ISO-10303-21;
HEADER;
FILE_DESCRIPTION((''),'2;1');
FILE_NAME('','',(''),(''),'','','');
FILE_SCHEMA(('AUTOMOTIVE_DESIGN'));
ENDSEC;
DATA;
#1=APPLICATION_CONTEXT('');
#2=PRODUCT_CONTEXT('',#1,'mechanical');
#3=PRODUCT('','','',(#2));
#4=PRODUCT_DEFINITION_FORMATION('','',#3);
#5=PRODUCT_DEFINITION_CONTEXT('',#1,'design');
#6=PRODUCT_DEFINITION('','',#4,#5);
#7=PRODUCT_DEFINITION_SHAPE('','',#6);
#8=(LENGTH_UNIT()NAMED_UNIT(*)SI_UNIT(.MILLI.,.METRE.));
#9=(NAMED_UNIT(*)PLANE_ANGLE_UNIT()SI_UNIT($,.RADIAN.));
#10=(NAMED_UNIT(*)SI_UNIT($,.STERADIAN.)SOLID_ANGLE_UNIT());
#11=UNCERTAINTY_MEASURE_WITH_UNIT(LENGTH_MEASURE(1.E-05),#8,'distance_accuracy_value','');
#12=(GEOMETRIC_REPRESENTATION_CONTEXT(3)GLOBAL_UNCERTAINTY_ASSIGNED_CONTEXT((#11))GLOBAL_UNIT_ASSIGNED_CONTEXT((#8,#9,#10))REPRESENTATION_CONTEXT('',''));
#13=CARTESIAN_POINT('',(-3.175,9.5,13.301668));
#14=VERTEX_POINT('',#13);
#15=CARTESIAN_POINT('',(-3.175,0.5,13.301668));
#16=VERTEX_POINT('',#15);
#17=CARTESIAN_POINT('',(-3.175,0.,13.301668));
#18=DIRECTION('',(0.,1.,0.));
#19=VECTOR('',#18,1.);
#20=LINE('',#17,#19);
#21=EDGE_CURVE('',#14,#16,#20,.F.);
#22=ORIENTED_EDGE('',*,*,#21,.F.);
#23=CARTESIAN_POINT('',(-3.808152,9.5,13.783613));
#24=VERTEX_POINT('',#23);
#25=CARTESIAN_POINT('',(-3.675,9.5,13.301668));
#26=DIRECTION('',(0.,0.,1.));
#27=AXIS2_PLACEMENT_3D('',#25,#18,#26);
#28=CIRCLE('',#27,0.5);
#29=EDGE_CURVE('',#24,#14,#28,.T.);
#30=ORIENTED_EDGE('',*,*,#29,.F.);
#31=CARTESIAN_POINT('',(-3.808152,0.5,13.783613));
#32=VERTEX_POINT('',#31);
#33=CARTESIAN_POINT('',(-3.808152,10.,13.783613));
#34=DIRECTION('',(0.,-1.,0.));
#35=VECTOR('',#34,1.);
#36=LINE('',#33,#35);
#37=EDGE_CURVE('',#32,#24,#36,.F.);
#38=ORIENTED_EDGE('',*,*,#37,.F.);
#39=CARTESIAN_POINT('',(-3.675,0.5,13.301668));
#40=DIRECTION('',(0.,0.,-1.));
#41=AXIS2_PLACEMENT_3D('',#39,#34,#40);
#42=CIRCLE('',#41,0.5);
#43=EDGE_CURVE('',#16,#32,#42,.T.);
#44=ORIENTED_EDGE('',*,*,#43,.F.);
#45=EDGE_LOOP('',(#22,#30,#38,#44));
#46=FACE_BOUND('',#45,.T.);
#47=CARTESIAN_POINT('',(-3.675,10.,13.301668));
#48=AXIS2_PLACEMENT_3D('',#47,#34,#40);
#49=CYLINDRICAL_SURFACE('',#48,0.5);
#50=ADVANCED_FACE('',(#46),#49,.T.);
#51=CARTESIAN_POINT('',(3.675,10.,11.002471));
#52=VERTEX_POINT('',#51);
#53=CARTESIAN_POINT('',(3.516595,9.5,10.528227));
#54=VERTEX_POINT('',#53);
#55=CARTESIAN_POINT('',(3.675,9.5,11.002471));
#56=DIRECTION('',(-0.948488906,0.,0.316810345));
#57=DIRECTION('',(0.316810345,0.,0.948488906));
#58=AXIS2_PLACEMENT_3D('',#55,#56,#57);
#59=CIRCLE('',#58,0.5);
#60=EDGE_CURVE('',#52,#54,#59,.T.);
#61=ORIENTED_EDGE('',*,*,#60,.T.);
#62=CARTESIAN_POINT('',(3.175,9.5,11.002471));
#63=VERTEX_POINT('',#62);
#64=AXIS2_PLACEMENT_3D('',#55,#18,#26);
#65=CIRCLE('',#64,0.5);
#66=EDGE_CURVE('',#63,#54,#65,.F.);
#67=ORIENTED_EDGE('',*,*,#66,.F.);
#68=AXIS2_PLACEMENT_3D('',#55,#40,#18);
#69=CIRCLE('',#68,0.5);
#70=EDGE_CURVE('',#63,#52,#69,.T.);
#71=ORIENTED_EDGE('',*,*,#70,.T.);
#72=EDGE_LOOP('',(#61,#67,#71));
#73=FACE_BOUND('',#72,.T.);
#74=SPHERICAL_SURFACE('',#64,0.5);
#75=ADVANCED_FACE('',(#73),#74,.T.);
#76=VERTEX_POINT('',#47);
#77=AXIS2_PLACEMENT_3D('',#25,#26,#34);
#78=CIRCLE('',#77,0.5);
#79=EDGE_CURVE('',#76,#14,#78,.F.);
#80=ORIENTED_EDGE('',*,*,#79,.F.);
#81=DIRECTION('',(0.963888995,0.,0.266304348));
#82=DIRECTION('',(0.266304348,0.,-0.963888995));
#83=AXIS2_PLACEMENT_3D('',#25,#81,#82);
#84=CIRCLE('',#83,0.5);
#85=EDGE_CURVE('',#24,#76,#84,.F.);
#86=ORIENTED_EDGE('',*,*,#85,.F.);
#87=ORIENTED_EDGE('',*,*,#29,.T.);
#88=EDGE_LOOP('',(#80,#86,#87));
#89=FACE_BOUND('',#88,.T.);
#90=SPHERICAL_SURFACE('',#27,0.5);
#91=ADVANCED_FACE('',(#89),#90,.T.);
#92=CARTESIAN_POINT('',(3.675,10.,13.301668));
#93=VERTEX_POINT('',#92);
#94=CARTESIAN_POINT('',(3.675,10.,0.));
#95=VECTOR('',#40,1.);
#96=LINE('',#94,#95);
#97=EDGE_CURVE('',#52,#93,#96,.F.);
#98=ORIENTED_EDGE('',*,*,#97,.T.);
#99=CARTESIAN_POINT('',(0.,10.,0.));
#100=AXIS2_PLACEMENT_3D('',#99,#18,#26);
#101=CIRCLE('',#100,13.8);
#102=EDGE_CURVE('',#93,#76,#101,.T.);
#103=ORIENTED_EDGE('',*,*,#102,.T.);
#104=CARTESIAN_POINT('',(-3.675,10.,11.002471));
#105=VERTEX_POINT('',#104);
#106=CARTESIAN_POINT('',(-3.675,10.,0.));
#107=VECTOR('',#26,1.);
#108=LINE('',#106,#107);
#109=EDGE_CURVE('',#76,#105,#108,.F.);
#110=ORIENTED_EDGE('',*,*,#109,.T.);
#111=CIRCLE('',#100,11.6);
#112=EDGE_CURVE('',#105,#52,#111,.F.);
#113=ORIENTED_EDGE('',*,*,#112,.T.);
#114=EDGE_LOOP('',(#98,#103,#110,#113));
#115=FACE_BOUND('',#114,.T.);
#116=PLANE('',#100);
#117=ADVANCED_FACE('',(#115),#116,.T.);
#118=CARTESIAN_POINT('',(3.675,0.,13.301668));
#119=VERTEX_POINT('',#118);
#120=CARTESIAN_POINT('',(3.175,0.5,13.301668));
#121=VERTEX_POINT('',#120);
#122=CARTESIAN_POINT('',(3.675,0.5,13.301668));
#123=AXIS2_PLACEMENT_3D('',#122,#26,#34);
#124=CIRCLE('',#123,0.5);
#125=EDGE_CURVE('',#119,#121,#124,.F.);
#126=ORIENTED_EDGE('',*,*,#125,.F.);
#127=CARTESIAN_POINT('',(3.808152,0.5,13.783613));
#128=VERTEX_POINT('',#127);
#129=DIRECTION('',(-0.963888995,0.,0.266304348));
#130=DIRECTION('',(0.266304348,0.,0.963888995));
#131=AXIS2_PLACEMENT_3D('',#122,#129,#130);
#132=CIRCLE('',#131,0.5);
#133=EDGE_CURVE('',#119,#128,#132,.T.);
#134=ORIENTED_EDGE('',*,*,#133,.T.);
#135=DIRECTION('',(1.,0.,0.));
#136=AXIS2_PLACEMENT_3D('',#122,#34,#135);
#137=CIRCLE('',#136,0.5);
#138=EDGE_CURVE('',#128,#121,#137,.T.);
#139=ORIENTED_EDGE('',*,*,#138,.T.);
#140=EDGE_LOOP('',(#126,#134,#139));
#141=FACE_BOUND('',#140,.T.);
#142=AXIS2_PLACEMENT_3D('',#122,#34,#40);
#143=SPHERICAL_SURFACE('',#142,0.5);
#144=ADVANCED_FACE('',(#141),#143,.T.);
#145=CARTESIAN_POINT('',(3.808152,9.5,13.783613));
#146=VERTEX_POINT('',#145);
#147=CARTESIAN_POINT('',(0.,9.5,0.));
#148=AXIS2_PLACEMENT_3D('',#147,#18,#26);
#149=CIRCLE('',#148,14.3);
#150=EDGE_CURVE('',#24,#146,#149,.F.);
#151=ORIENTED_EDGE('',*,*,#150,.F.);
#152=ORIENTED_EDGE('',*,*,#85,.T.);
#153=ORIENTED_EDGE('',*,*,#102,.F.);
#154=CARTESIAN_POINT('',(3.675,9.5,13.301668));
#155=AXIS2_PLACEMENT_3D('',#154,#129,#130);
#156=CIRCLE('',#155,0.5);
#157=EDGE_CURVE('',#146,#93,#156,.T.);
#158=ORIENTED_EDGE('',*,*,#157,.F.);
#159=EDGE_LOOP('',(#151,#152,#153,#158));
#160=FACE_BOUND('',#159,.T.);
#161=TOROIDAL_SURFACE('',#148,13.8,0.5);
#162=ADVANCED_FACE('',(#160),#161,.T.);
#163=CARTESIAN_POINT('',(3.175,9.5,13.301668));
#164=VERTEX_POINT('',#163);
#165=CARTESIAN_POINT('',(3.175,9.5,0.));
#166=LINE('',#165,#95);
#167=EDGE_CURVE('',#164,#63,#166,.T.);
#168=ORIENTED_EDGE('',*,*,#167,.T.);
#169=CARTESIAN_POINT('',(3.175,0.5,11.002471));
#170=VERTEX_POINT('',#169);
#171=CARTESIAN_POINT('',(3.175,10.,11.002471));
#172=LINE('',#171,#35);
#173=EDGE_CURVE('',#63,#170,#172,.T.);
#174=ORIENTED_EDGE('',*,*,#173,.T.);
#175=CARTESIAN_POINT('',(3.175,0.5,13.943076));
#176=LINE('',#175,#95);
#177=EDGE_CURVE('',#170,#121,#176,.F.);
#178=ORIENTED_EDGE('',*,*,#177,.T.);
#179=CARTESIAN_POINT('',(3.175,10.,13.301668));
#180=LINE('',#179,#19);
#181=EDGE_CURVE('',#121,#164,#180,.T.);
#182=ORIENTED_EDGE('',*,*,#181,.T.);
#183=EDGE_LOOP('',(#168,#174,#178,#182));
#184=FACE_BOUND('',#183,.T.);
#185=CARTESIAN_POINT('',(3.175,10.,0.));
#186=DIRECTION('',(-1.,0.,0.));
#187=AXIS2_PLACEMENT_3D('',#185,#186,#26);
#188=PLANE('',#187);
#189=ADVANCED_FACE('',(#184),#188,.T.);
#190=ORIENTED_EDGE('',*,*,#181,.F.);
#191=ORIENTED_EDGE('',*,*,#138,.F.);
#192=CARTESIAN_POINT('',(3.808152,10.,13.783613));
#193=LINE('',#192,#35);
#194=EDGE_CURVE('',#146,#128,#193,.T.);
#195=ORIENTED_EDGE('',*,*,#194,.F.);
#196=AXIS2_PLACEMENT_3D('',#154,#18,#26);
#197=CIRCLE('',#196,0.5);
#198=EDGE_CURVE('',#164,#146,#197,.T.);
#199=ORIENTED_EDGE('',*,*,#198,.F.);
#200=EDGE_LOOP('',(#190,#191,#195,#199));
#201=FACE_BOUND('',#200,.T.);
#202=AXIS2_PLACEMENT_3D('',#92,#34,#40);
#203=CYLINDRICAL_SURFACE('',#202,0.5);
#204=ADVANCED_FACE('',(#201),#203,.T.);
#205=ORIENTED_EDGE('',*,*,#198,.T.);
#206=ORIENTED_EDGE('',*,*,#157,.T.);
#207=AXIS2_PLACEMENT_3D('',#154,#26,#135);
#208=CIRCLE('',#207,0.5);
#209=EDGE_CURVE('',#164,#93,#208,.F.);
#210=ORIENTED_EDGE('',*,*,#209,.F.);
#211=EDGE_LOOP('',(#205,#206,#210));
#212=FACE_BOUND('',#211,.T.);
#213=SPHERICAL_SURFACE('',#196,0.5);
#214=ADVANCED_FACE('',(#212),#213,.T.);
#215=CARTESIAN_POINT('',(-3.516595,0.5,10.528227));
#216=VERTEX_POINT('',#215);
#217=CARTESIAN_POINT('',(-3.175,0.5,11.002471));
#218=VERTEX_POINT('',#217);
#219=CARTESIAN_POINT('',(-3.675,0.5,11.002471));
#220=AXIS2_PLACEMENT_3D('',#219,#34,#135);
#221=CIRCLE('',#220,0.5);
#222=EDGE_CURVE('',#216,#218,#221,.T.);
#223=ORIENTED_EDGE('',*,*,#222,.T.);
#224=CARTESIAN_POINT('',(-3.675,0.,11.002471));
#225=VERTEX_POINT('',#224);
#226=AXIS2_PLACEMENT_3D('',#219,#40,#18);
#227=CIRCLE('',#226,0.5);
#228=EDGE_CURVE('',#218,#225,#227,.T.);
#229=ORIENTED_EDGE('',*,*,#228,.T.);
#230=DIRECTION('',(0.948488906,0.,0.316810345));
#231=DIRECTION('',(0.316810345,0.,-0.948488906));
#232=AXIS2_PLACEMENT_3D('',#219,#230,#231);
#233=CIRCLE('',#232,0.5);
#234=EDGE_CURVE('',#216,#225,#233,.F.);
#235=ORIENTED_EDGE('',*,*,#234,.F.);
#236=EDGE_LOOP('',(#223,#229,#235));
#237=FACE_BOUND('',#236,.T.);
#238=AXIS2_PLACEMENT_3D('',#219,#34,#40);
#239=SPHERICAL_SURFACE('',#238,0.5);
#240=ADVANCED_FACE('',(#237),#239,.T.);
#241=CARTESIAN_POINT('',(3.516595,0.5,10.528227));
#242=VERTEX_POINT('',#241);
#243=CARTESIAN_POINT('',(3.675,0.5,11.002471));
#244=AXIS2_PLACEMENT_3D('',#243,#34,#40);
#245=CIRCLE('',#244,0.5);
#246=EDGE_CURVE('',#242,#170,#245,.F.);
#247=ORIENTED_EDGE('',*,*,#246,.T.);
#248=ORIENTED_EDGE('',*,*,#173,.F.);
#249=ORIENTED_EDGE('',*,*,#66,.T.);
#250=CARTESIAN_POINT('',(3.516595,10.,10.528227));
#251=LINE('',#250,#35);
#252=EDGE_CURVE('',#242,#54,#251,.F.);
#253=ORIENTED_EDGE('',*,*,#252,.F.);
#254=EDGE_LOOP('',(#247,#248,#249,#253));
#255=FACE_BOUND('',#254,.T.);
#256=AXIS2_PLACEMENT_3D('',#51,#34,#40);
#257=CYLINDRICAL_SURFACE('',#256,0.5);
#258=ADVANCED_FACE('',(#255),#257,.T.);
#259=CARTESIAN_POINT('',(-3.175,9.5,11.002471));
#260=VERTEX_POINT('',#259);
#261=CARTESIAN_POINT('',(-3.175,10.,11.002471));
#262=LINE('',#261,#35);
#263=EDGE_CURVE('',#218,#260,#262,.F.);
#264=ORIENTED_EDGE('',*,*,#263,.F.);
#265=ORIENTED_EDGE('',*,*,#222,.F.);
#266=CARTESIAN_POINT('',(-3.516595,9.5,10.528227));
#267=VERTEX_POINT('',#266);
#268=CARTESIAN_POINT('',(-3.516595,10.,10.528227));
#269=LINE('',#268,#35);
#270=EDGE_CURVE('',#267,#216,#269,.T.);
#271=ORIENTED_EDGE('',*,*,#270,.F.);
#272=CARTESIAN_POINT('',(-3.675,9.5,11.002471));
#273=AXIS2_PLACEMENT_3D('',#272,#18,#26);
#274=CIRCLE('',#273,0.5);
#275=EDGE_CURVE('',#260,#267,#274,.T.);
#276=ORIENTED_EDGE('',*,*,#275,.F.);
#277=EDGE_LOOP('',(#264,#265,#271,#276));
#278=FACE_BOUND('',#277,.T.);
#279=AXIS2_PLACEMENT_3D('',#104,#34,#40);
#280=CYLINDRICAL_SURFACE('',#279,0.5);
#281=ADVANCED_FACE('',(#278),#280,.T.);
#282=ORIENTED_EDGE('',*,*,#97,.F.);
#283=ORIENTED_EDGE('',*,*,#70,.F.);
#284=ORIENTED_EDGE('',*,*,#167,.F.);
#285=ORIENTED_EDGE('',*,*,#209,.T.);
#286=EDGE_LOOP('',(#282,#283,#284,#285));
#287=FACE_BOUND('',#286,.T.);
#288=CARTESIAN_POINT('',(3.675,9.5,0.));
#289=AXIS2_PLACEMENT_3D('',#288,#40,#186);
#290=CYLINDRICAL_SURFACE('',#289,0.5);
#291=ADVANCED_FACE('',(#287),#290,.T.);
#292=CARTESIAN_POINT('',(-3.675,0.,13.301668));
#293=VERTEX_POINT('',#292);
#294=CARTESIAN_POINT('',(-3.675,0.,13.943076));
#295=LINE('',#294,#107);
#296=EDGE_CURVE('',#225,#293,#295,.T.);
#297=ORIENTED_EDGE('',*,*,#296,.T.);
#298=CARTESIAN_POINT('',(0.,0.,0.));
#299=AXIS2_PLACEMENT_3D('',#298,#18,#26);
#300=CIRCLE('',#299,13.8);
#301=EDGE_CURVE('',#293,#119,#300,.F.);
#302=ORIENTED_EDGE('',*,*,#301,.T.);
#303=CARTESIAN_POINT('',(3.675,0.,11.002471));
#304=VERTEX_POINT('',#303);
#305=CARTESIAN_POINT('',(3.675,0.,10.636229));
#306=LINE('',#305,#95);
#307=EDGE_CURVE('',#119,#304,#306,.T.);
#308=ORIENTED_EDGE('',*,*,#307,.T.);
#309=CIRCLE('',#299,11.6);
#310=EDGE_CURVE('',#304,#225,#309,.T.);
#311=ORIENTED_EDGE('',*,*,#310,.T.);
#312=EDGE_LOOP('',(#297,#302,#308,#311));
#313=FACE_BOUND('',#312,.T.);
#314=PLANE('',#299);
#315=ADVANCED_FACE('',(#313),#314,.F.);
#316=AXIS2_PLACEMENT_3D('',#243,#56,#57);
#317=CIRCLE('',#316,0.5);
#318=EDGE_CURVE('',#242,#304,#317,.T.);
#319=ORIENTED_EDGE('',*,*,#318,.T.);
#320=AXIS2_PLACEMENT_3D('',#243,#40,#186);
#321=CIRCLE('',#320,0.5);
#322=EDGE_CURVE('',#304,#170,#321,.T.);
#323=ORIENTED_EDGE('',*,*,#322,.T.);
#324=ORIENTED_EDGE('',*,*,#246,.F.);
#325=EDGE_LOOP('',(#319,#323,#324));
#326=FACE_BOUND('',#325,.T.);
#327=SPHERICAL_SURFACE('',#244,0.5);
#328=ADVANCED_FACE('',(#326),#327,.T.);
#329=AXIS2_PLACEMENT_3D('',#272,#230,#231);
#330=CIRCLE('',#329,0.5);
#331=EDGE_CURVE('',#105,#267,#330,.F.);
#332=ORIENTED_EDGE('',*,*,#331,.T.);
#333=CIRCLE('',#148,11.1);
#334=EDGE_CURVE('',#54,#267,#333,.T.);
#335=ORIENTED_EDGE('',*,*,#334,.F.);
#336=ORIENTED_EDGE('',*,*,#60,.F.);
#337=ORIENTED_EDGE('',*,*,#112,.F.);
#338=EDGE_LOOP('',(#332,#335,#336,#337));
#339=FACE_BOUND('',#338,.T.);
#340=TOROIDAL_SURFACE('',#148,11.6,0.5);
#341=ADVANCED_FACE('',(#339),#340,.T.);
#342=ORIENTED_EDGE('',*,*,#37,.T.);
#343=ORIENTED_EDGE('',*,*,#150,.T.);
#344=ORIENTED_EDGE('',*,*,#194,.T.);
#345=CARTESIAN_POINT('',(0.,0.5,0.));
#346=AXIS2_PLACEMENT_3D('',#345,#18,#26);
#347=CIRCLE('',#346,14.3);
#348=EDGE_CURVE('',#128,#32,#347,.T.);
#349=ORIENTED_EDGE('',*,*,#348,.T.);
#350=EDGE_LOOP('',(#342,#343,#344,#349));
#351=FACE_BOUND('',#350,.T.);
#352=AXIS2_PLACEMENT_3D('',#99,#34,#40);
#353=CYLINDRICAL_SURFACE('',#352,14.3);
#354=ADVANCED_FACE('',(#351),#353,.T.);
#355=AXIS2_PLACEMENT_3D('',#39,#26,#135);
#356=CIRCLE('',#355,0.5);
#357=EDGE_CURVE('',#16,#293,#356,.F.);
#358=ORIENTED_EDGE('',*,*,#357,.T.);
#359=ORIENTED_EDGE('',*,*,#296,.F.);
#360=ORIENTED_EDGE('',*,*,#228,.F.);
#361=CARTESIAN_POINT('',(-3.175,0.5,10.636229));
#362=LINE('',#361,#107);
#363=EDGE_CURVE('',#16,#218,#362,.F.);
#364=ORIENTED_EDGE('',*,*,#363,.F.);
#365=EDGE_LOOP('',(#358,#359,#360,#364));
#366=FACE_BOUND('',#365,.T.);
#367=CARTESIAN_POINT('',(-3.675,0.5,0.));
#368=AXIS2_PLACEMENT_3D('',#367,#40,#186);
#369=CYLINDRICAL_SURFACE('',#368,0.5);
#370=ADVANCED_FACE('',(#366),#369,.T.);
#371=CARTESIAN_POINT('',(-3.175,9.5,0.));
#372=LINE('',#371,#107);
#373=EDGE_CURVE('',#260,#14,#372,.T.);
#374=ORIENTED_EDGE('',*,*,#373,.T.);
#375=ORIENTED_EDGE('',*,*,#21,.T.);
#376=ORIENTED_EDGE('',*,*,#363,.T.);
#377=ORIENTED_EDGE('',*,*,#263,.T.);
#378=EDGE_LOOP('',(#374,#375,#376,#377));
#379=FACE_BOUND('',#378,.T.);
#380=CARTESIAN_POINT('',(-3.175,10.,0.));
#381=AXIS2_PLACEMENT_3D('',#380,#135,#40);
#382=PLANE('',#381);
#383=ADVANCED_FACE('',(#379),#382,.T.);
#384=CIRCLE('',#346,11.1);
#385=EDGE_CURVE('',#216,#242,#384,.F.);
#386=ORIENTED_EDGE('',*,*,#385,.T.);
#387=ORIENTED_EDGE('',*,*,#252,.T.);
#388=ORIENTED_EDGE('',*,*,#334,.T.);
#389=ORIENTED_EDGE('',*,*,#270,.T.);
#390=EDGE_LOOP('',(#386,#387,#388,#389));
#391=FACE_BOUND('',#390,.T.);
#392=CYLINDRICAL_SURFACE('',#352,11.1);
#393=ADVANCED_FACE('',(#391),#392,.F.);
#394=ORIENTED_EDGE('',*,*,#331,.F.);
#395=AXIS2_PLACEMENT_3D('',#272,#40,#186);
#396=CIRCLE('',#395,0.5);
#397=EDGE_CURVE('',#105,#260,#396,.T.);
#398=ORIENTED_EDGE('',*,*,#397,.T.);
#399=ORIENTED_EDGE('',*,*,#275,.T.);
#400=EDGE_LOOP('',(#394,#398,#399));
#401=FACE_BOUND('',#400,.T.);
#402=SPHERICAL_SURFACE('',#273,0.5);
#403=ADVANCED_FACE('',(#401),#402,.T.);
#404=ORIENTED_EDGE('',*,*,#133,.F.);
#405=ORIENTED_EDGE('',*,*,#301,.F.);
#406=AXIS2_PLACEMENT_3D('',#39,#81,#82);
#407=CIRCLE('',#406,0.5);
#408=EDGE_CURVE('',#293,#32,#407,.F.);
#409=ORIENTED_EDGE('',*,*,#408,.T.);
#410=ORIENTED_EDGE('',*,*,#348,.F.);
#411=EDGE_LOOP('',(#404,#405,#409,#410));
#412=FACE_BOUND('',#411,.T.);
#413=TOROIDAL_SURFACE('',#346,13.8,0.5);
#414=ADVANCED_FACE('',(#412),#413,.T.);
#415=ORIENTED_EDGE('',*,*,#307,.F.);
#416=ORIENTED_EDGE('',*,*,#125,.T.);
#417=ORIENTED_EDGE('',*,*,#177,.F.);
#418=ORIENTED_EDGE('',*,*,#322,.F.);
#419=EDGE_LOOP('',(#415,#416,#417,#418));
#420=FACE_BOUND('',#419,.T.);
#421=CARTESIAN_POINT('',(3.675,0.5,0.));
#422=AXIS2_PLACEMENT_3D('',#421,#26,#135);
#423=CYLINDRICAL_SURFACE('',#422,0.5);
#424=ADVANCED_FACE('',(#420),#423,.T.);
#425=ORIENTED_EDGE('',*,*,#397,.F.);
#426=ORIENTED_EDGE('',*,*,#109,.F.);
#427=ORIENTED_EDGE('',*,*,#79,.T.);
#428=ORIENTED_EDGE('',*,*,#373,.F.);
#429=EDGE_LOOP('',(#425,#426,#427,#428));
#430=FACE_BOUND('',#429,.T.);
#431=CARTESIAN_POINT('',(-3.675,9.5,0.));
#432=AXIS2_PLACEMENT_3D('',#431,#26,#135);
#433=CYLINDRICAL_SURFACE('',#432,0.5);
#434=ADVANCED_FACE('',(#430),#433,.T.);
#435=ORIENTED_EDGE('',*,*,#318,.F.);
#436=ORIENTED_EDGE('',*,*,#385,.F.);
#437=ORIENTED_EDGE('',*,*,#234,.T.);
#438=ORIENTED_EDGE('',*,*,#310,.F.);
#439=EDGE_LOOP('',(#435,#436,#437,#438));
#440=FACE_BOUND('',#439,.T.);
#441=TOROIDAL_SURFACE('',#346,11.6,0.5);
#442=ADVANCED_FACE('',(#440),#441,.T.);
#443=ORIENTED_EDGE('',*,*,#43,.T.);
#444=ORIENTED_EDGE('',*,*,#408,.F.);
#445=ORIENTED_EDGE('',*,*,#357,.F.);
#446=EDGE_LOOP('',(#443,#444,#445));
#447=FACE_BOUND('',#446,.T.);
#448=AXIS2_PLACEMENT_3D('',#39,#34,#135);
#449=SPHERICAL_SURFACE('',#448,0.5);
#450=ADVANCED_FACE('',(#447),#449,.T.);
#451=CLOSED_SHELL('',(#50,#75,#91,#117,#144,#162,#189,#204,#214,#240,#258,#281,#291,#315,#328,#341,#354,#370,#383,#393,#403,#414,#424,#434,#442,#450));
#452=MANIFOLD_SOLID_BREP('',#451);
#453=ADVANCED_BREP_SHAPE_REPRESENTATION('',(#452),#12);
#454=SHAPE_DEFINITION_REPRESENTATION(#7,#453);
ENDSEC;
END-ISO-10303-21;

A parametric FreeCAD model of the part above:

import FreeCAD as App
import Part
import Sketcher
from FreeCAD import Vector
Q = App.Units.Quantity


def add_polygon(sketch, points):
    """Adds a closed chain of lines whose ends are joined by coincident constraints."""
    first, n = sketch.GeometryCount, len(points)
    for a, b in zip(points, points[1:] + points[:1]):
        sketch.addGeometry(Part.LineSegment(App.Vector(*a, 0), App.Vector(*b, 0)), False)
    for i in range(n):
        sketch.addConstraint(Sketcher.Constraint("Coincident", first + i, 2, first + (i + 1) % n, 1))

doc = App.newDocument("Part")
body = doc.addObject("PartDesign::Body", "Body")

# Sketch on XZ plane
sketch1 = body.newObject("Sketcher::SketchObject", "Sketch")
sketch1.AttachmentSupport = (doc.getObject("XZ_Plane"), [""])
sketch1.MapMode = "FlatFace"
sketch1.addGeometry(Part.Circle(Vector(0, 0, 0), Vector(0, 0, 1), 14), False)
sketch1.addGeometry(Part.Circle(Vector(0, 0, 0), Vector(0, 0, 1), 11), False)
sketch1.addConstraint(Sketcher.Constraint("Coincident", 0, 3, -1, 1))
sketch1.addConstraint(Sketcher.Constraint("Coincident", 1, 3, -1, 1))
sketch1.addConstraint(Sketcher.Constraint("Diameter", 0, Q("28.6 mm")))
sketch1.addConstraint(Sketcher.Constraint("Diameter", 1, Q("22.2 mm")))
pad1 = body.newObject("PartDesign::Pad", "Pad")
pad1.Profile = sketch1
pad1.Length = 10
pad1.Reversed = True

# Sketch on XZ plane
sketch2 = body.newObject("Sketcher::SketchObject", "Sketch001")
sketch2.AttachmentSupport = (doc.getObject("XZ_Plane"), [""])
sketch2.MapMode = "FlatFace"
add_polygon(sketch2, [(-3, 0), (-3, 14), (3, 14), (3, 0)])  # lines 0-3
sketch2.addConstraint(Sketcher.Constraint("Vertical", 0))
sketch2.addConstraint(Sketcher.Constraint("Horizontal", 1))
sketch2.addConstraint(Sketcher.Constraint("Vertical", 2))
sketch2.addConstraint(Sketcher.Constraint("Horizontal", 3))
sketch2.addConstraint(Sketcher.Constraint("Symmetric", 2, 2, 3, 2, -1, 1))
sketch2.addConstraint(Sketcher.Constraint("DistanceY", 0, 1, 0, 2, Q("14.3 mm")))
sketch2.addConstraint(Sketcher.Constraint("DistanceX", 1, 1, 1, 2, Q("6.35 mm")))
pocket1 = body.newObject("PartDesign::Pocket", "Pocket")
pocket1.Profile = sketch2
pocket1.Type = "ThroughAll"
doc.recompute()

fillet = body.newObject("PartDesign::Fillet", "Fillet")
fillet.Base = (pocket1, ["Edge1"])
fillet.UseAllEdges = True
fillet.Radius = 0.5

doc.recompute()
